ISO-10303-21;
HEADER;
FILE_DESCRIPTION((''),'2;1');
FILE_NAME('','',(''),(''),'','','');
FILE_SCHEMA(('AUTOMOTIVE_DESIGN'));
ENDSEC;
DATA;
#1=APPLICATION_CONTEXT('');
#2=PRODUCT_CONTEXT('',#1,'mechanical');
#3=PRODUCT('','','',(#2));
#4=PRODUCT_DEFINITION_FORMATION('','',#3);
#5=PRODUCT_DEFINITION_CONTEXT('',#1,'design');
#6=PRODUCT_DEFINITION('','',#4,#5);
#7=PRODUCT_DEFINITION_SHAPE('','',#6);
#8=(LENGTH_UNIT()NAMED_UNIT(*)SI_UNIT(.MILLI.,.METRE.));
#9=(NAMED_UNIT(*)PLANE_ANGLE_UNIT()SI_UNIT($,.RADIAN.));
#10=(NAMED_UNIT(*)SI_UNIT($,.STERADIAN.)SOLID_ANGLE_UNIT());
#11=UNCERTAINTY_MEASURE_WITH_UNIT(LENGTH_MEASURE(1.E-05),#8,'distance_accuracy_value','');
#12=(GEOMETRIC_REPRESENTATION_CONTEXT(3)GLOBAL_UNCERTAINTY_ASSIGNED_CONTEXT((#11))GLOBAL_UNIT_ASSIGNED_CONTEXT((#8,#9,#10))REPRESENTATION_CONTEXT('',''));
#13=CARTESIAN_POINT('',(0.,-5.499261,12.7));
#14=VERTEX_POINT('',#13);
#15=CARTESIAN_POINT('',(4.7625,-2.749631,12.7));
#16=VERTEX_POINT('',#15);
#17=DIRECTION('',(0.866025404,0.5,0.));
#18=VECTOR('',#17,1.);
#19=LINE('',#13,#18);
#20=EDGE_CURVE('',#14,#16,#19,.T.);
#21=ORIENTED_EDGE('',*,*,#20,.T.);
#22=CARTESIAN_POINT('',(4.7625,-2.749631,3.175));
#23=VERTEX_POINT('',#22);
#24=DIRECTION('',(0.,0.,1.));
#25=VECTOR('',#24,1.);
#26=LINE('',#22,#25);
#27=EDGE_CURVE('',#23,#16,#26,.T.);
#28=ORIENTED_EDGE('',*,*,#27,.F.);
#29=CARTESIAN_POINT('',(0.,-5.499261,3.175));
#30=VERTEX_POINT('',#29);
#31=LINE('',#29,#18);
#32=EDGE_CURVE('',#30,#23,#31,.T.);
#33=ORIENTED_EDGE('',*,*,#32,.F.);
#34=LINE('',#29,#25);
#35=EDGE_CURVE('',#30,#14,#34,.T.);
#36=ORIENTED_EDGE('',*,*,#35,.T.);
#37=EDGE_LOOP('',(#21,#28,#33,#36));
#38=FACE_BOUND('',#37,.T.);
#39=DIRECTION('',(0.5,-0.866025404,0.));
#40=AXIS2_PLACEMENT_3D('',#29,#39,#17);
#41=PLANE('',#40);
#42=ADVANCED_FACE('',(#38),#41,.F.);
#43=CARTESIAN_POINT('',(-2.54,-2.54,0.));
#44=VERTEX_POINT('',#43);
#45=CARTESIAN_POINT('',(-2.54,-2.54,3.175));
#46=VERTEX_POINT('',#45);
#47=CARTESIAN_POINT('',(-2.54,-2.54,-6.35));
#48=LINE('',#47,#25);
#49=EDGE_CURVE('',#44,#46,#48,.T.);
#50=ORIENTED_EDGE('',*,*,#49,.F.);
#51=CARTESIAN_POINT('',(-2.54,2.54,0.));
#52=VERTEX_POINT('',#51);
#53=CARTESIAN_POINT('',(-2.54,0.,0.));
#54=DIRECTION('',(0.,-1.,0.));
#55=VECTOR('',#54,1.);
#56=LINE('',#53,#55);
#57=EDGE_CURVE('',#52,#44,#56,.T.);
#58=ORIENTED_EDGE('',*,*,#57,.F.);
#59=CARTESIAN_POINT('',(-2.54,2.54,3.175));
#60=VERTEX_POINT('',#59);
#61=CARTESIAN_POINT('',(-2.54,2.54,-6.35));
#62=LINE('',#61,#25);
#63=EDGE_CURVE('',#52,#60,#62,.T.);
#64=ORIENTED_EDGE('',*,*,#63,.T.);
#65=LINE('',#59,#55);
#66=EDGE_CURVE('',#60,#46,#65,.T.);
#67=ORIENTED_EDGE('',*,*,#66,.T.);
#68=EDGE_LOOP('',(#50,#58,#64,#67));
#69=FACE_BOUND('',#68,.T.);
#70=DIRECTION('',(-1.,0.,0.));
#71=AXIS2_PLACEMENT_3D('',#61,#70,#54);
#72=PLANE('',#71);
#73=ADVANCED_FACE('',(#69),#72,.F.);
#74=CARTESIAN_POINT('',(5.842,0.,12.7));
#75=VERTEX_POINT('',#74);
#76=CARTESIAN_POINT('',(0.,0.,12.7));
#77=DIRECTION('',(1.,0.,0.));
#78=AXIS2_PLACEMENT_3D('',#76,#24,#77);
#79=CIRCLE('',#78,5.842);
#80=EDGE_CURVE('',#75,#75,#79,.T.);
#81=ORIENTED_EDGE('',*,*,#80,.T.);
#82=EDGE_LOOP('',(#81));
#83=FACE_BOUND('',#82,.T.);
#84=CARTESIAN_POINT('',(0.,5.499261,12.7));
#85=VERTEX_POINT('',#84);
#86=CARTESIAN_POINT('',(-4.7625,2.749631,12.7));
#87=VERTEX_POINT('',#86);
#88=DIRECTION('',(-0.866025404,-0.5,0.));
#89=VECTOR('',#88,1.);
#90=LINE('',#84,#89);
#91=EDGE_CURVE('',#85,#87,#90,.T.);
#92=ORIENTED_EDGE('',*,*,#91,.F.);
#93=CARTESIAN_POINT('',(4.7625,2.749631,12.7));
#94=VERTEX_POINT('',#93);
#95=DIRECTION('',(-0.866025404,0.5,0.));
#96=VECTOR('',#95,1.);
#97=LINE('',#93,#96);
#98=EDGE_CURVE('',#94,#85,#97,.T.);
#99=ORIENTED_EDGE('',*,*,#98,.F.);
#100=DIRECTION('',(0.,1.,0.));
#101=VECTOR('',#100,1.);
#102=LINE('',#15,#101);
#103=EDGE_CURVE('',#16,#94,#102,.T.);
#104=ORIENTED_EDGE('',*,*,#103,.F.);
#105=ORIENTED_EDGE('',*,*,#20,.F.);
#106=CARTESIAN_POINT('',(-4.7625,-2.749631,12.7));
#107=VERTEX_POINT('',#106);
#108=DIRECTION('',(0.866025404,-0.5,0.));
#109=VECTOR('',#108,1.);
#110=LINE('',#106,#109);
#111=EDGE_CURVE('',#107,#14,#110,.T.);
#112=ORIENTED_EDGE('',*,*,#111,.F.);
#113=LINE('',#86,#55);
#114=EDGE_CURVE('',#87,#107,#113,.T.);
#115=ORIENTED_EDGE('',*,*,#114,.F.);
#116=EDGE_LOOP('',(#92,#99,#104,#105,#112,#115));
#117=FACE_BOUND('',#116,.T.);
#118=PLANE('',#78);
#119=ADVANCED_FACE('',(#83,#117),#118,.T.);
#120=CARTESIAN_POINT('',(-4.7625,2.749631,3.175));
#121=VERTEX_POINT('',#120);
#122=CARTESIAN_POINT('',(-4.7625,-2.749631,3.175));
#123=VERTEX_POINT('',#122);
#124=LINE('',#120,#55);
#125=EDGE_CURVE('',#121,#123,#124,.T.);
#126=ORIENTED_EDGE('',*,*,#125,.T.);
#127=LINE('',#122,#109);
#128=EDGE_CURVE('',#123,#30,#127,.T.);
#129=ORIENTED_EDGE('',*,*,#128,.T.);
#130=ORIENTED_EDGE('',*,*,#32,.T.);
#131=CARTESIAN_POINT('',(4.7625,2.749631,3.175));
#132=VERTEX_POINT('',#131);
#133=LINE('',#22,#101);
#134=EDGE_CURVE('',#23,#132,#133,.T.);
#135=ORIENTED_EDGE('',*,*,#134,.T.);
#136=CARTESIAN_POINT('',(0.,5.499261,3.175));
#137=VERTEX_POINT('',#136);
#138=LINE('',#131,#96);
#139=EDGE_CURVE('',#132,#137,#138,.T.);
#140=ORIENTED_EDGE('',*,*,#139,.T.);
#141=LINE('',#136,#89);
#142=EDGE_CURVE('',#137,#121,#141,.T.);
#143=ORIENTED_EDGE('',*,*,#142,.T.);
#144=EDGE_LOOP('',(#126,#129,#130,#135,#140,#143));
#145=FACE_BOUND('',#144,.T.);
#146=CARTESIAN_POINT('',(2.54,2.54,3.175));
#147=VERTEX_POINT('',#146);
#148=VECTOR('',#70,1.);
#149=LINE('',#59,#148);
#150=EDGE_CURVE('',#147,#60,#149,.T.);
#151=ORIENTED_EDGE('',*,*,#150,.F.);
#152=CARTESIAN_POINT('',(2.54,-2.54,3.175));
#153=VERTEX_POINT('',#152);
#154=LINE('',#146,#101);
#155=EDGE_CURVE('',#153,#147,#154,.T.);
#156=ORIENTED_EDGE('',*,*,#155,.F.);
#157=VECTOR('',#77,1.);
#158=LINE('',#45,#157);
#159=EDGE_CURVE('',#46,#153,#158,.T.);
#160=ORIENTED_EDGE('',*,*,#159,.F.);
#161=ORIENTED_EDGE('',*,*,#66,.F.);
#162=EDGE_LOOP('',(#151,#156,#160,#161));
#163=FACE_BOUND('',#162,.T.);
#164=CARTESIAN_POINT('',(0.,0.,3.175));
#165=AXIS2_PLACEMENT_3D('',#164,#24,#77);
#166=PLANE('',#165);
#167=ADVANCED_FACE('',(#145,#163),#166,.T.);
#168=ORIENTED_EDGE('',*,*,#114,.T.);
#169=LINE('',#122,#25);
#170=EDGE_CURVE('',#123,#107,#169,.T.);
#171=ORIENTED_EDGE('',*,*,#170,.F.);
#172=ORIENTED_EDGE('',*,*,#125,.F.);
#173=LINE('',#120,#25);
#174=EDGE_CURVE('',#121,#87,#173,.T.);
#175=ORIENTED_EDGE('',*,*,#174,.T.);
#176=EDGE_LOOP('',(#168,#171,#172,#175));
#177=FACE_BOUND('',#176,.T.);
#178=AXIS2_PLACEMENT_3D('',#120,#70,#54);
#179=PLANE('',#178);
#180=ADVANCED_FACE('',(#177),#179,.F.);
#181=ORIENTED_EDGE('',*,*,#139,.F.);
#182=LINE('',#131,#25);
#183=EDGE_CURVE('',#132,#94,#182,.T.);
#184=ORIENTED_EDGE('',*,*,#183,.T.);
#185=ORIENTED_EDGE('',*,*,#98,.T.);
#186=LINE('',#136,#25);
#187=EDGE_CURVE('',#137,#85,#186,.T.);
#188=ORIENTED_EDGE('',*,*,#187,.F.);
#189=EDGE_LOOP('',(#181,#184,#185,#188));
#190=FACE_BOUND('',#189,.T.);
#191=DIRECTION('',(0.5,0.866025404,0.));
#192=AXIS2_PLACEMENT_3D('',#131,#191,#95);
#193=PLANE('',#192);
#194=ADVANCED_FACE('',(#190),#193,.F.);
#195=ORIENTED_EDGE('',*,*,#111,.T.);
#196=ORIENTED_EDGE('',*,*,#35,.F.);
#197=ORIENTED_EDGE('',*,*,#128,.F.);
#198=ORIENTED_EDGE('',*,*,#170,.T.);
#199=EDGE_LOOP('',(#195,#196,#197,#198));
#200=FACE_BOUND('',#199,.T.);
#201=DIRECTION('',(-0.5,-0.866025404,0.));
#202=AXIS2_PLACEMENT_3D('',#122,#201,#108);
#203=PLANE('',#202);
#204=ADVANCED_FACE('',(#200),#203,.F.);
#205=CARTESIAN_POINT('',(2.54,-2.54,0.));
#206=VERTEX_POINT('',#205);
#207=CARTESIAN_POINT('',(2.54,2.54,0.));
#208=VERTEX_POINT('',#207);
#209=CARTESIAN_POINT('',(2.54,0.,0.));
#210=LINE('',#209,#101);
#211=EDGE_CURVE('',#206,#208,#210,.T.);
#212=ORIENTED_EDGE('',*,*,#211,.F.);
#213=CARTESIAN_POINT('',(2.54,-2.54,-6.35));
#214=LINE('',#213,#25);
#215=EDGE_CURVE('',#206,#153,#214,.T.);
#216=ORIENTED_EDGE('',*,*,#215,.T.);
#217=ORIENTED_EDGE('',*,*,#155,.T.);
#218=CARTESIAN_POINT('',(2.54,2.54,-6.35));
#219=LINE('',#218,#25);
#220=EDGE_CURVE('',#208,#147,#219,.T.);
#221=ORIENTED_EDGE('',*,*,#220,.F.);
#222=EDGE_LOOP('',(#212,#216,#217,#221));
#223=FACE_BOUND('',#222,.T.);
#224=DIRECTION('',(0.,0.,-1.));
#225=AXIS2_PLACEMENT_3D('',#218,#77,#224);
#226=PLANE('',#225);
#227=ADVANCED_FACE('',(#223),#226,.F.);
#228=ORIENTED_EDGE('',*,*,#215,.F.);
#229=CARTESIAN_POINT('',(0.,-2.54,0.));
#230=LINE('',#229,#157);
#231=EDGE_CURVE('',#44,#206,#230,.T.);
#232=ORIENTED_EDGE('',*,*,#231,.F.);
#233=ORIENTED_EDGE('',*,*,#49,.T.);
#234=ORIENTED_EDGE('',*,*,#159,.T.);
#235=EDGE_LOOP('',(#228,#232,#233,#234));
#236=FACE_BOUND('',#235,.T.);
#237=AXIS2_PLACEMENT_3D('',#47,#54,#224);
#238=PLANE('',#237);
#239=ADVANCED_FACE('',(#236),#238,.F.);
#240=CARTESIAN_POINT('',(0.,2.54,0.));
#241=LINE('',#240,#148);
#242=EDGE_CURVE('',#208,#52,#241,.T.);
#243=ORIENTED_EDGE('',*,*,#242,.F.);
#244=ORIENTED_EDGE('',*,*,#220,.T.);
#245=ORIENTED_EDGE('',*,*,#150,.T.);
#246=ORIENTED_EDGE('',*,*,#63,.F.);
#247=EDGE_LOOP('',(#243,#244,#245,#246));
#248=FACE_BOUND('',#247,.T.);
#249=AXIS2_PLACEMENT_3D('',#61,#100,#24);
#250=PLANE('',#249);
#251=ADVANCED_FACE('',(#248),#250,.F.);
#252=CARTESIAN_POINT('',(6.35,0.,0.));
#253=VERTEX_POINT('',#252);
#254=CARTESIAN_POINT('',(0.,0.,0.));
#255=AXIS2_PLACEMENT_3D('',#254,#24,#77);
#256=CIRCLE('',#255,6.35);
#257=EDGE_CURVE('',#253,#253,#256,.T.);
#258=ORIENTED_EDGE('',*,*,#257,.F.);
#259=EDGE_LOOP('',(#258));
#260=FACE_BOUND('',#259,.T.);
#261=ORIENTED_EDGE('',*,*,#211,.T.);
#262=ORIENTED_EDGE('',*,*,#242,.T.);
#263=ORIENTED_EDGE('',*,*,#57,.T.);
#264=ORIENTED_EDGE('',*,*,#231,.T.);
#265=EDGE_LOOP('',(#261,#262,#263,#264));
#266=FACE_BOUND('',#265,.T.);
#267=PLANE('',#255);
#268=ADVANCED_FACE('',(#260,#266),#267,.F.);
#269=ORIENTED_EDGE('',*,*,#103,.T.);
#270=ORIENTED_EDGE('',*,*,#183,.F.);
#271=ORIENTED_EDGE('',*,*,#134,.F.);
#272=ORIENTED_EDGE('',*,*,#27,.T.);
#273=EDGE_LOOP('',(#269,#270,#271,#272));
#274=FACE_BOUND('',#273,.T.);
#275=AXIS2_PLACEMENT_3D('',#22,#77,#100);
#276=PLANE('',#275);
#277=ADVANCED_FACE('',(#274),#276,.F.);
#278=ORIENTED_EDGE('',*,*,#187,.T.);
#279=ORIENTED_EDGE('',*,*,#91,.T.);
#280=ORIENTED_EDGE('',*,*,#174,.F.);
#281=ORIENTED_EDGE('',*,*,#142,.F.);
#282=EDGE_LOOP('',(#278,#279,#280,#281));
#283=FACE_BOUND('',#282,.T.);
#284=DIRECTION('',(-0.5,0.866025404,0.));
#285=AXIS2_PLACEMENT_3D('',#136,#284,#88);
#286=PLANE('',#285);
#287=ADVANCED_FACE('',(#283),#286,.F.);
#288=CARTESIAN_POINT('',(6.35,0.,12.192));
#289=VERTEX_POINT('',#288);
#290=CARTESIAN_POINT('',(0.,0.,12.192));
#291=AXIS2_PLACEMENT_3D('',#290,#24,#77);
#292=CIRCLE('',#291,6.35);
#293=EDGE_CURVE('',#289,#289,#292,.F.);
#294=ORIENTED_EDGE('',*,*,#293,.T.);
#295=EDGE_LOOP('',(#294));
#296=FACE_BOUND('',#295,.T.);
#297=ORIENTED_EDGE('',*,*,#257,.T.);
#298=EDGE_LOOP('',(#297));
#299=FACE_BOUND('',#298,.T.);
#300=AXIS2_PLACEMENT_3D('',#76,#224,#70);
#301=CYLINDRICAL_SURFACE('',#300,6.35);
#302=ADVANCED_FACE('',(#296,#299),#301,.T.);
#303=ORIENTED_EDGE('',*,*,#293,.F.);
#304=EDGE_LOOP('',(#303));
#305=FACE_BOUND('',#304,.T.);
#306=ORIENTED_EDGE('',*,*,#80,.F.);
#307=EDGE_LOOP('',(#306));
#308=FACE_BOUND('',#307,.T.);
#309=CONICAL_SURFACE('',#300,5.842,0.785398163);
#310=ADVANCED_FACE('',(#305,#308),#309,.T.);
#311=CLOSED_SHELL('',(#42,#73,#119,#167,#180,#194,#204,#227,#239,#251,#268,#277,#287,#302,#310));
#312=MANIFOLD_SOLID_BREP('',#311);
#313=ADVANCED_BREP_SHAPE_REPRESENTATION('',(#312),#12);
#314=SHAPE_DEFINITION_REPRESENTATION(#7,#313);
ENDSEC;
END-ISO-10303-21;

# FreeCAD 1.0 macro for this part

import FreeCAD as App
import Part
import Sketcher
Q = App.Units.Quantity


def edges_at(feature, points):
    """Names of the edges that pass closest to the given points."""
    edges = feature.Shape.Edges
    near = lambda p: min(range(len(edges)), key=lambda i: edges[i].distToShape(Part.Vertex(*p))[0])
    return sorted({f"Edge{near(p) + 1}" for p in points})


def add_polygon(sketch, points):
    """Adds a closed chain of lines whose ends are joined by coincident constraints."""
    first, n = sketch.GeometryCount, len(points)
    for a, b in zip(points, points[1:] + points[:1]):
        sketch.addGeometry(Part.LineSegment(App.Vector(*a, 0), App.Vector(*b, 0)), False)
    for i in range(n):
        sketch.addConstraint(Sketcher.Constraint("Coincident", first + i, 2, first + (i + 1) % n, 1))

doc = App.newDocument("Part")
params = doc.addObject("Spreadsheet::Sheet", "Params")
for row, (alias, value) in enumerate([
    ("sketch1_diameter", "0.5 in"),
    ("pad1_length", "0.5 in"),
    ("pocket1_length", "0.375 in"),
    ("sketch3_width", "0.2 in"),
    ("pocket2_length", "0.375 in"),
    ("chamfer_size", "0.02 in"),
], start=1):
    params.set(f"A{row}", alias)
    params.set(f"B{row}", "=" + value)
    params.setAlias(f"B{row}", alias)

body = doc.addObject("PartDesign::Body", "Body")

# Sketch on XY plane
sketch1 = body.newObject("Sketcher::SketchObject", "Sketch")
sketch1.AttachmentSupport = (doc.getObject("XY_Plane"), [""])
sketch1.MapMode = "FlatFace"
sketch1.addGeometry(Part.Circle(App.Vector(0, 0, 0), App.Vector(0, 0, 1), 6), False)
sketch1.addConstraint(Sketcher.Constraint("Coincident", 0, 3, -1, 1))
sketch1.addConstraint(Sketcher.Constraint("Diameter", 0, Q("0.5 in")))
sketch1.setExpression("Constraints[1]", "Params.sketch1_diameter")
pad1 = body.newObject("PartDesign::Pad", "Pad")
pad1.Profile = sketch1
pad1.setExpression("Length", "Params.pad1_length")

# Sketch on XY plane
sketch2 = body.newObject("Sketcher::SketchObject", "Sketch001")
sketch2.AttachmentSupport = (doc.getObject("XY_Plane"), [""])
sketch2.MapMode = "FlatFace"
sketch2.AttachmentOffset = App.Placement(App.Vector(0, 0, 0.5 * 25.4), App.Rotation())
add_polygon(sketch2, [(0, -5), (5, -3), (5, 3), (0, 5), (-5, 3), (-5, -3)])  # lines 0-5
sketch2.addConstraint(Sketcher.Constraint("Vertical", 1))
sketch2.addConstraint(Sketcher.Constraint("Vertical", 4))
sketch2.addConstraint(Sketcher.Constraint("Symmetric", 0, 2, 3, 2, -1, 1))
sketch2.addConstraint(Sketcher.Constraint("Symmetric", 2, 2, 5, 2, -1, 1))
sketch2.addConstraint(Sketcher.Constraint("PointOnObject", 2, 2, -2))
sketch2.addConstraint(Sketcher.Constraint("Parallel", 2, 5))
sketch2.addConstraint(Sketcher.Constraint("Horizontal", 1, 2, 3, 2))
sketch2.addConstraint(Sketcher.Constraint("Angle", 0, Q("30 deg")))
sketch2.addConstraint(Sketcher.Constraint("DistanceX", -1, 1, 0, 2, Q("0.1875 in")))
sketch2.addConstraint(Sketcher.Constraint("DistanceY", 1, 1, 1, 2, 5.499261))
pocket1 = body.newObject("PartDesign::Pocket", "Pocket")
pocket1.Profile = sketch2
pocket1.setExpression("Length", "Params.pocket1_length")

# Sketch on XY plane
sketch3 = body.newObject("Sketcher::SketchObject", "Sketch002")
sketch3.AttachmentSupport = (doc.getObject("XY_Plane"), [""])
sketch3.MapMode = "FlatFace"
sketch3.AttachmentOffset = App.Placement(App.Vector(0, 0, 0.125 * 25.4), App.Rotation())
add_polygon(sketch3, [(-3, 3), (-3, -3), (3, -3), (3, 3)])  # lines 0-3
sketch3.addConstraint(Sketcher.Constraint("Vertical", 0))
sketch3.addConstraint(Sketcher.Constraint("Horizontal", 1))
sketch3.addConstraint(Sketcher.Constraint("Vertical", 2))
sketch3.addConstraint(Sketcher.Constraint("Horizontal", 3))
sketch3.addConstraint(Sketcher.Constraint("Symmetric", 0, 2, 2, 2, -1, 1))
sketch3.addConstraint(Sketcher.Constraint("Equal", 3, 0))
sketch3.addConstraint(Sketcher.Constraint("DistanceX", 1, 1, 1, 2, Q("0.2 in")))
sketch3.setExpression("Constraints[10]", "Params.sketch3_width")
pocket2 = body.newObject("PartDesign::Pocket", "Pocket001")
pocket2.Profile = sketch3
pocket2.setExpression("Length", "Params.pocket2_length")
doc.recompute()

chamfer = body.newObject("PartDesign::Chamfer", "Chamfer")
chamfer.Base = (pocket2, edges_at(pocket2, [(-6.35, 0, 12.7)]))
chamfer.setExpression("Size", "Params.chamfer_size")

doc.recompute()
